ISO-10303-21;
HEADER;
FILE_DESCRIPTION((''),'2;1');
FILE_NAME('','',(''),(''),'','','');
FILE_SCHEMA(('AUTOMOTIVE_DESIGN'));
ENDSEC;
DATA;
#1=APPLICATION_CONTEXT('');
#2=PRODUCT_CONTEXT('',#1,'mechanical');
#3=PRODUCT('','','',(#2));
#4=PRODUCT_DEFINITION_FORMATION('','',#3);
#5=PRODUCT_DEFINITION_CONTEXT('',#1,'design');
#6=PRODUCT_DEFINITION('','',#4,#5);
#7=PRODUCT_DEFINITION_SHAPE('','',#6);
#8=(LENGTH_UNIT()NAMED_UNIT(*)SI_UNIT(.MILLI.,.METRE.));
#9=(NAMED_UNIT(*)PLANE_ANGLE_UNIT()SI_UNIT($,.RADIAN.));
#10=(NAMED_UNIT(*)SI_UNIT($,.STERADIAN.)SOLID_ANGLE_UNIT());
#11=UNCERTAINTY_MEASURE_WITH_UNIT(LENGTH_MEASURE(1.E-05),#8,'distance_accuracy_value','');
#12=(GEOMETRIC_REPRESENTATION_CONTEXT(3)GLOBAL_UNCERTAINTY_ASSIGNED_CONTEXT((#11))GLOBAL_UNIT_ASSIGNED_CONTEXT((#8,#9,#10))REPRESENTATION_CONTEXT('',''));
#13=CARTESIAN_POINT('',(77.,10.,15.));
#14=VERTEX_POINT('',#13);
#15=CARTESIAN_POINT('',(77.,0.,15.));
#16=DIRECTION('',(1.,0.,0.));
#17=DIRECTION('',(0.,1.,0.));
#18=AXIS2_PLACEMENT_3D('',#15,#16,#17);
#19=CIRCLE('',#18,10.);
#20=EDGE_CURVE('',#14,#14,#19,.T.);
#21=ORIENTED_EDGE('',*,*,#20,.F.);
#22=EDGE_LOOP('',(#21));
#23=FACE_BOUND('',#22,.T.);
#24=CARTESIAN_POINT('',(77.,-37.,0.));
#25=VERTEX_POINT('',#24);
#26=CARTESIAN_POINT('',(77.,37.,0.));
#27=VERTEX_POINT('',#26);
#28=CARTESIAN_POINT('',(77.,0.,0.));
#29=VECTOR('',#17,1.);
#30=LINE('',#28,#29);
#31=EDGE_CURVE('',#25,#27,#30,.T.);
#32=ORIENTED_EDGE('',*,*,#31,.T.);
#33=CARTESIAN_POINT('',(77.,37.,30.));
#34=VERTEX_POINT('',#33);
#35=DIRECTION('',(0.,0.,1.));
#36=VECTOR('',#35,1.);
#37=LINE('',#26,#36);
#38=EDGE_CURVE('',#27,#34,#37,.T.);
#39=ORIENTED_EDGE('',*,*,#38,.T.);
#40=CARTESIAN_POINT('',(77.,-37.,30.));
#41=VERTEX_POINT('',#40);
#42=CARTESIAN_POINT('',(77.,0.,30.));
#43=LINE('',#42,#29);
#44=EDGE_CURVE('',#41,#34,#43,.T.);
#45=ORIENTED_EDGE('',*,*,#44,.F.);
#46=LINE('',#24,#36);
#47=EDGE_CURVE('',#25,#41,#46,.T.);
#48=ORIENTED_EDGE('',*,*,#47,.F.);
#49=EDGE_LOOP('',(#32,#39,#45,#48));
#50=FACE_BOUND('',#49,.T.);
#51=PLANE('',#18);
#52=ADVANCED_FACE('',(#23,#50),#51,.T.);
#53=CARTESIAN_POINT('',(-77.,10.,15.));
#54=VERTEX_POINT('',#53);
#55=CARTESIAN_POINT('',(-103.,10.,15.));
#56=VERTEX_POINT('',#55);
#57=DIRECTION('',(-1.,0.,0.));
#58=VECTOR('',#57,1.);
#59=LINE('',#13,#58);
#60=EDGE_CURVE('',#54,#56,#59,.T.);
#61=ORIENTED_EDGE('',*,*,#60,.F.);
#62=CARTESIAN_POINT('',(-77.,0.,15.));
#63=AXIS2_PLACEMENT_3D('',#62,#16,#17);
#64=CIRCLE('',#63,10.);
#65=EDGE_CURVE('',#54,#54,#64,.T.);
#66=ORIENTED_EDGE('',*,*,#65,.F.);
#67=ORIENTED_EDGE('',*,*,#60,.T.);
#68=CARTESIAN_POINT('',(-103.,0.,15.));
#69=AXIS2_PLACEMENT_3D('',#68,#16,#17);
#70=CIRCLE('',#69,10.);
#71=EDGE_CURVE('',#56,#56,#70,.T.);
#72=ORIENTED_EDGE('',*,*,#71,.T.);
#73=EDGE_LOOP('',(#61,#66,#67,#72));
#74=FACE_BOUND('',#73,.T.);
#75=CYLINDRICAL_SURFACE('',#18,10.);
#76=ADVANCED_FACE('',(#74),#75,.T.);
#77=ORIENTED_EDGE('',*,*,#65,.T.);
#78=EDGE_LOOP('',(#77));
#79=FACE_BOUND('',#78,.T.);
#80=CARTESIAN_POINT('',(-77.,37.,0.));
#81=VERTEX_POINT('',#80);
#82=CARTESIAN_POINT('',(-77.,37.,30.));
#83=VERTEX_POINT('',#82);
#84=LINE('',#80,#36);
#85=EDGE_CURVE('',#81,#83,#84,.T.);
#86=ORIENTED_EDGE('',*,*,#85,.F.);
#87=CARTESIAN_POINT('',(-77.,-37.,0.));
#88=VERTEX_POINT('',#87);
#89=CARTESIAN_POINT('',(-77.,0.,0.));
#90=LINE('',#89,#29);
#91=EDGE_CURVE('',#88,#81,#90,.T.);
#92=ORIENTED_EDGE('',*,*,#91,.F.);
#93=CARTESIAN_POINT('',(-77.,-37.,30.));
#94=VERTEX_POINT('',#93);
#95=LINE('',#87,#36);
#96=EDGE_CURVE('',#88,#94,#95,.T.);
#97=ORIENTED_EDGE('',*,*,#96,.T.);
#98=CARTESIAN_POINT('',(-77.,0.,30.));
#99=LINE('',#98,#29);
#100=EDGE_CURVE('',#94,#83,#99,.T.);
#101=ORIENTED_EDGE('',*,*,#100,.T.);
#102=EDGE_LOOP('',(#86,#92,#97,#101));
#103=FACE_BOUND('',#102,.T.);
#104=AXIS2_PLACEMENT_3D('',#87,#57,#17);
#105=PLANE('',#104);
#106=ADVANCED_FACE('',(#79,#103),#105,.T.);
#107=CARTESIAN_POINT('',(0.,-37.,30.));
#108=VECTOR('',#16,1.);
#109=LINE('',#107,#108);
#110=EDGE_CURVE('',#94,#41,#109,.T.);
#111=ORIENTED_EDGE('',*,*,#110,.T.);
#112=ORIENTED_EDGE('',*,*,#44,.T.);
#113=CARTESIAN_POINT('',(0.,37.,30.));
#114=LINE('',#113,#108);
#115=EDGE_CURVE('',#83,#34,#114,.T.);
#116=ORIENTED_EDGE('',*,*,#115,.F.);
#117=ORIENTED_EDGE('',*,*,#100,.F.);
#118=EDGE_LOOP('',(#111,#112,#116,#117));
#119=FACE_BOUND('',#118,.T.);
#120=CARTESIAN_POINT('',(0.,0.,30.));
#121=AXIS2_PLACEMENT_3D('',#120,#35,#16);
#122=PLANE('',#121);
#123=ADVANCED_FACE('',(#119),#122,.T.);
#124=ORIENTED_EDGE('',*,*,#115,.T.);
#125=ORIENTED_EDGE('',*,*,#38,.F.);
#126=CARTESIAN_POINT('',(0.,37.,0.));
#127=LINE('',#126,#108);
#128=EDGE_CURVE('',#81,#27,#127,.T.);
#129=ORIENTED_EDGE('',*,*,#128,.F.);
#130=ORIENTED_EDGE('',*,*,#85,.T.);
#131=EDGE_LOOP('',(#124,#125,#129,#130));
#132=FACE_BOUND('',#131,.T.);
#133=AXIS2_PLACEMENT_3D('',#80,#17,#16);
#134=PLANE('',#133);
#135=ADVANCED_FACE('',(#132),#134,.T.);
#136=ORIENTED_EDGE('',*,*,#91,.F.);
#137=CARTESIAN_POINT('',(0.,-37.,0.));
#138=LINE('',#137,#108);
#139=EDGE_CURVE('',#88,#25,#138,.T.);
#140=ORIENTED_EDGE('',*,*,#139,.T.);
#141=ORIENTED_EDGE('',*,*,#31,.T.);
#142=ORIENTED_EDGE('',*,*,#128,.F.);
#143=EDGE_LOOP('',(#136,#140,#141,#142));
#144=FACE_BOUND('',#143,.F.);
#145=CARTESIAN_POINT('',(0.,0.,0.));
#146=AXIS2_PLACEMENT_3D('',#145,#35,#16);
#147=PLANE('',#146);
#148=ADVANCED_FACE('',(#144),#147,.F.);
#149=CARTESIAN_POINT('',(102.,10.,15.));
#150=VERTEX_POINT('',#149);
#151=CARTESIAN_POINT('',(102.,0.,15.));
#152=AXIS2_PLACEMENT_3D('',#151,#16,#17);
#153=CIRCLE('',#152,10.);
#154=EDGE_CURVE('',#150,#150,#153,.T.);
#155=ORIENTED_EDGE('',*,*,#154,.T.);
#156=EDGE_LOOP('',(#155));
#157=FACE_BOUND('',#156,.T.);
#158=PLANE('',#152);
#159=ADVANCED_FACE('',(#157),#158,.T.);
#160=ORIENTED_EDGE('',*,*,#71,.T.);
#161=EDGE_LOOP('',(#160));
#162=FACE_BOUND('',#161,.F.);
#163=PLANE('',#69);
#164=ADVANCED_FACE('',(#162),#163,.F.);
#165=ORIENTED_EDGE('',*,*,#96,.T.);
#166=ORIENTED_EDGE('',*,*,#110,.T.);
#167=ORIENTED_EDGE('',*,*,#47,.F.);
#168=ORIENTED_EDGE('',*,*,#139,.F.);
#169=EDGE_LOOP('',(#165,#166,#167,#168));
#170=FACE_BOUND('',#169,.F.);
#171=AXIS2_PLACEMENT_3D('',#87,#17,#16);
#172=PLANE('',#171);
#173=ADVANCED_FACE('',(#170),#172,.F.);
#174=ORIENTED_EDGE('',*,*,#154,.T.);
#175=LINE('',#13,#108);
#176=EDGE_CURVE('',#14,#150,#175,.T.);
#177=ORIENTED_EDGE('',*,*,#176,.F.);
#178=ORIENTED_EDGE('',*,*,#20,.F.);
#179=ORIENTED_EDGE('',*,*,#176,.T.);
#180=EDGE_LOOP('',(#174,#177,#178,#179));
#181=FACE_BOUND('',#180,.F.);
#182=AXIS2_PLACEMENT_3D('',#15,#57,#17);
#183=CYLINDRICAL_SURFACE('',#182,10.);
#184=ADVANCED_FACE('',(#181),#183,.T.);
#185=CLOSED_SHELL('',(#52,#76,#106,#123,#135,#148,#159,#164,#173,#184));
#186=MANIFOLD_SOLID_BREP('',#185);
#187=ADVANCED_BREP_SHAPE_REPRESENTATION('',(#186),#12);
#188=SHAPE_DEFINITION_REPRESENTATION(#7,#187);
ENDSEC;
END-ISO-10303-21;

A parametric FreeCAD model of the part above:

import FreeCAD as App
import Part
import Sketcher

doc = App.newDocument("Part")
body = doc.addObject("PartDesign::Body", "Body")

sketch1 = body.newObject("Sketcher::SketchObject", "Sketch")
sketch1.AttachmentSupport = (doc.getObject("XY_Plane"), [""])
sketch1.MapMode = "FlatFace"
sketch1.addGeometry([
    Part.LineSegment(App.Vector(-77, 37, 0), App.Vector(-77, -37, 0)),
    Part.LineSegment(App.Vector(-77, -37, 0), App.Vector(77, -37, 0)),
    Part.LineSegment(App.Vector(77, -37, 0), App.Vector(77, 37, 0)),
    Part.LineSegment(App.Vector(77, 37, 0), App.Vector(-77, 37, 0)),
], False)
sketch1.addConstraint([
    Sketcher.Constraint("Coincident", 0, 2, 1, 1),
    Sketcher.Constraint("Coincident", 1, 2, 2, 1),
    Sketcher.Constraint("Coincident", 2, 2, 3, 1),
    Sketcher.Constraint("Coincident", 3, 2, 0, 1),
    Sketcher.Constraint("Vertical", 0),
    Sketcher.Constraint("Horizontal", 1),
    Sketcher.Constraint("Vertical", 2),
    Sketcher.Constraint("Horizontal", 3),
    Sketcher.Constraint("Symmetric", 0, 2, 2, 2, -1, 1),
    Sketcher.Constraint("DistanceX", 1, 1, 1, 2, 154.0),
    Sketcher.Constraint("DistanceY", 0, 2, 0, 1, 74.0),
])
pad1 = body.newObject("PartDesign::Pad", "Pad")
pad1.Profile = sketch1
pad1.Length = 30

sketch2 = body.newObject("Sketcher::SketchObject", "Sketch001")
sketch2.AttachmentSupport = (doc.getObject("YZ_Plane"), [""])
sketch2.MapMode = "FlatFace"
sketch2.AttachmentOffset = App.Placement(App.Vector(0, 0, 77), App.Rotation())
sketch2.addGeometry(Part.Circle(App.Vector(0, 15, 0), App.Vector(0, 0, 1), 10), False)
sketch2.addConstraint([
    Sketcher.Constraint("PointOnObject", 0, 3, -2),
    Sketcher.Constraint("Diameter", 0, 20.0),
    Sketcher.Constraint("DistanceY", -1, 1, 0, 3, 15.0),
])
pad2 = body.newObject("PartDesign::Pad", "Pad001")
pad2.Profile = sketch2
pad2.Type = "TwoLengths"
pad2.Length = 180
pad2.Length2 = 25
pad2.Reversed = True

doc.recompute()
